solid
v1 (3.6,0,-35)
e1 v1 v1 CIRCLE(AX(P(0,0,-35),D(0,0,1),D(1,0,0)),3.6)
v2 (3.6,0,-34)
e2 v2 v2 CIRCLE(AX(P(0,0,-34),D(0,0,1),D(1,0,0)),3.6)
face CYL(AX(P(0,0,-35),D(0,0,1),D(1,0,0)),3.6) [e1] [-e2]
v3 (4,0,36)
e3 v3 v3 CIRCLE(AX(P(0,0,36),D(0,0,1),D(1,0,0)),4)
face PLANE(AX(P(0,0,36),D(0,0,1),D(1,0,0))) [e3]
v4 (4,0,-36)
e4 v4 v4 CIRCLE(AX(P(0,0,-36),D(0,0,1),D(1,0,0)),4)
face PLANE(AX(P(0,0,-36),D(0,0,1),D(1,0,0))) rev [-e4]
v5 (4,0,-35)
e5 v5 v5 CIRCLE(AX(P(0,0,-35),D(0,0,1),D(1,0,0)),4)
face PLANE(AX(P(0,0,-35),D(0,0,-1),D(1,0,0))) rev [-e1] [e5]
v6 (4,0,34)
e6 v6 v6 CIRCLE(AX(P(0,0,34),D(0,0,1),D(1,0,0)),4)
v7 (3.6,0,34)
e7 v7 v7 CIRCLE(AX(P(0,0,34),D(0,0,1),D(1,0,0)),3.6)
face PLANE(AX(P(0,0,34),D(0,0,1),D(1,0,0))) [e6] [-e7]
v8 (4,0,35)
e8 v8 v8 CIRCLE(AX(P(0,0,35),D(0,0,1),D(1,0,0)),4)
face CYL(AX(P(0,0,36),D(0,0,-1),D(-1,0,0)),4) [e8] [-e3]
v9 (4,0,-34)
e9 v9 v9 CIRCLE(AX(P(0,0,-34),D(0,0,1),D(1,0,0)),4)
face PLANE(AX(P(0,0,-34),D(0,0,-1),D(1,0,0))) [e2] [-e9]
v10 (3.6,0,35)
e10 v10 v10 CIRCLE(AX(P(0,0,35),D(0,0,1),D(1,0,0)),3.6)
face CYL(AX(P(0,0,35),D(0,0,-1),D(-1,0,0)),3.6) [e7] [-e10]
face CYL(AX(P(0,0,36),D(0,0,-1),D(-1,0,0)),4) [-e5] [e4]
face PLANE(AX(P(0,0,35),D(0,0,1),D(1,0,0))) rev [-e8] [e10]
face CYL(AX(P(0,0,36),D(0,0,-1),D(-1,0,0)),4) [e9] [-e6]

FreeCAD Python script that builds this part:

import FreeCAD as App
import Part
import Sketcher

doc = App.newDocument("Part")
body = doc.addObject("PartDesign::Body", "Body")

# Sketch on XY plane
sketch1 = body.newObject("Sketcher::SketchObject", "Sketch")
sketch1.AttachmentSupport = (doc.getObject("XY_Plane"), [""])
sketch1.MapMode = "FlatFace"
sketch1.addGeometry(Part.Circle(App.Vector(0, 0, 0), App.Vector(0, 0, 1), 4), False)
sketch1.addConstraint([
    Sketcher.Constraint("Coincident", 0, 3, -1, 1),
    Sketcher.Constraint("Diameter", 0, 8.0),
])
pad1 = body.newObject("PartDesign::Pad", "Pad")
pad1.Profile = sketch1
pad1.Length = 72
pad1.Midplane = True

# Sketch on XY plane
sketch2 = body.newObject("Sketcher::SketchObject", "Sketch001")
sketch2.AttachmentSupport = (doc.getObject("XY_Plane"), [""])
sketch2.MapMode = "FlatFace"
sketch2.AttachmentOffset = App.Placement(App.Vector(0, 0, 35), App.Rotation())
sketch2.addGeometry([
    Part.Circle(App.Vector(0, 0, 0), App.Vector(0, 0, 1), 4),
    Part.Circle(App.Vector(0, 0, 0), App.Vector(0, 0, 1), 3.6),
], False)
sketch2.addConstraint([
    Sketcher.Constraint("Coincident", 0, 3, -1, 1),
    Sketcher.Constraint("Coincident", 1, 3, -1, 1),
    Sketcher.Constraint("Diameter", 0, 8.0),
    Sketcher.Constraint("Diameter", 1, 7.2),
])
pocket1 = body.newObject("PartDesign::Pocket", "Pocket")
pocket1.Profile = sketch2
pocket1.Length = 1
doc.recompute()

mirrored = body.newObject("PartDesign::Mirrored", "Mirrored")
mirrored.Originals = [pocket1]
mirrored.MirrorPlane = (doc.getObject("XY_Plane"), [""])
body.Tip = mirrored

doc.recompute()
